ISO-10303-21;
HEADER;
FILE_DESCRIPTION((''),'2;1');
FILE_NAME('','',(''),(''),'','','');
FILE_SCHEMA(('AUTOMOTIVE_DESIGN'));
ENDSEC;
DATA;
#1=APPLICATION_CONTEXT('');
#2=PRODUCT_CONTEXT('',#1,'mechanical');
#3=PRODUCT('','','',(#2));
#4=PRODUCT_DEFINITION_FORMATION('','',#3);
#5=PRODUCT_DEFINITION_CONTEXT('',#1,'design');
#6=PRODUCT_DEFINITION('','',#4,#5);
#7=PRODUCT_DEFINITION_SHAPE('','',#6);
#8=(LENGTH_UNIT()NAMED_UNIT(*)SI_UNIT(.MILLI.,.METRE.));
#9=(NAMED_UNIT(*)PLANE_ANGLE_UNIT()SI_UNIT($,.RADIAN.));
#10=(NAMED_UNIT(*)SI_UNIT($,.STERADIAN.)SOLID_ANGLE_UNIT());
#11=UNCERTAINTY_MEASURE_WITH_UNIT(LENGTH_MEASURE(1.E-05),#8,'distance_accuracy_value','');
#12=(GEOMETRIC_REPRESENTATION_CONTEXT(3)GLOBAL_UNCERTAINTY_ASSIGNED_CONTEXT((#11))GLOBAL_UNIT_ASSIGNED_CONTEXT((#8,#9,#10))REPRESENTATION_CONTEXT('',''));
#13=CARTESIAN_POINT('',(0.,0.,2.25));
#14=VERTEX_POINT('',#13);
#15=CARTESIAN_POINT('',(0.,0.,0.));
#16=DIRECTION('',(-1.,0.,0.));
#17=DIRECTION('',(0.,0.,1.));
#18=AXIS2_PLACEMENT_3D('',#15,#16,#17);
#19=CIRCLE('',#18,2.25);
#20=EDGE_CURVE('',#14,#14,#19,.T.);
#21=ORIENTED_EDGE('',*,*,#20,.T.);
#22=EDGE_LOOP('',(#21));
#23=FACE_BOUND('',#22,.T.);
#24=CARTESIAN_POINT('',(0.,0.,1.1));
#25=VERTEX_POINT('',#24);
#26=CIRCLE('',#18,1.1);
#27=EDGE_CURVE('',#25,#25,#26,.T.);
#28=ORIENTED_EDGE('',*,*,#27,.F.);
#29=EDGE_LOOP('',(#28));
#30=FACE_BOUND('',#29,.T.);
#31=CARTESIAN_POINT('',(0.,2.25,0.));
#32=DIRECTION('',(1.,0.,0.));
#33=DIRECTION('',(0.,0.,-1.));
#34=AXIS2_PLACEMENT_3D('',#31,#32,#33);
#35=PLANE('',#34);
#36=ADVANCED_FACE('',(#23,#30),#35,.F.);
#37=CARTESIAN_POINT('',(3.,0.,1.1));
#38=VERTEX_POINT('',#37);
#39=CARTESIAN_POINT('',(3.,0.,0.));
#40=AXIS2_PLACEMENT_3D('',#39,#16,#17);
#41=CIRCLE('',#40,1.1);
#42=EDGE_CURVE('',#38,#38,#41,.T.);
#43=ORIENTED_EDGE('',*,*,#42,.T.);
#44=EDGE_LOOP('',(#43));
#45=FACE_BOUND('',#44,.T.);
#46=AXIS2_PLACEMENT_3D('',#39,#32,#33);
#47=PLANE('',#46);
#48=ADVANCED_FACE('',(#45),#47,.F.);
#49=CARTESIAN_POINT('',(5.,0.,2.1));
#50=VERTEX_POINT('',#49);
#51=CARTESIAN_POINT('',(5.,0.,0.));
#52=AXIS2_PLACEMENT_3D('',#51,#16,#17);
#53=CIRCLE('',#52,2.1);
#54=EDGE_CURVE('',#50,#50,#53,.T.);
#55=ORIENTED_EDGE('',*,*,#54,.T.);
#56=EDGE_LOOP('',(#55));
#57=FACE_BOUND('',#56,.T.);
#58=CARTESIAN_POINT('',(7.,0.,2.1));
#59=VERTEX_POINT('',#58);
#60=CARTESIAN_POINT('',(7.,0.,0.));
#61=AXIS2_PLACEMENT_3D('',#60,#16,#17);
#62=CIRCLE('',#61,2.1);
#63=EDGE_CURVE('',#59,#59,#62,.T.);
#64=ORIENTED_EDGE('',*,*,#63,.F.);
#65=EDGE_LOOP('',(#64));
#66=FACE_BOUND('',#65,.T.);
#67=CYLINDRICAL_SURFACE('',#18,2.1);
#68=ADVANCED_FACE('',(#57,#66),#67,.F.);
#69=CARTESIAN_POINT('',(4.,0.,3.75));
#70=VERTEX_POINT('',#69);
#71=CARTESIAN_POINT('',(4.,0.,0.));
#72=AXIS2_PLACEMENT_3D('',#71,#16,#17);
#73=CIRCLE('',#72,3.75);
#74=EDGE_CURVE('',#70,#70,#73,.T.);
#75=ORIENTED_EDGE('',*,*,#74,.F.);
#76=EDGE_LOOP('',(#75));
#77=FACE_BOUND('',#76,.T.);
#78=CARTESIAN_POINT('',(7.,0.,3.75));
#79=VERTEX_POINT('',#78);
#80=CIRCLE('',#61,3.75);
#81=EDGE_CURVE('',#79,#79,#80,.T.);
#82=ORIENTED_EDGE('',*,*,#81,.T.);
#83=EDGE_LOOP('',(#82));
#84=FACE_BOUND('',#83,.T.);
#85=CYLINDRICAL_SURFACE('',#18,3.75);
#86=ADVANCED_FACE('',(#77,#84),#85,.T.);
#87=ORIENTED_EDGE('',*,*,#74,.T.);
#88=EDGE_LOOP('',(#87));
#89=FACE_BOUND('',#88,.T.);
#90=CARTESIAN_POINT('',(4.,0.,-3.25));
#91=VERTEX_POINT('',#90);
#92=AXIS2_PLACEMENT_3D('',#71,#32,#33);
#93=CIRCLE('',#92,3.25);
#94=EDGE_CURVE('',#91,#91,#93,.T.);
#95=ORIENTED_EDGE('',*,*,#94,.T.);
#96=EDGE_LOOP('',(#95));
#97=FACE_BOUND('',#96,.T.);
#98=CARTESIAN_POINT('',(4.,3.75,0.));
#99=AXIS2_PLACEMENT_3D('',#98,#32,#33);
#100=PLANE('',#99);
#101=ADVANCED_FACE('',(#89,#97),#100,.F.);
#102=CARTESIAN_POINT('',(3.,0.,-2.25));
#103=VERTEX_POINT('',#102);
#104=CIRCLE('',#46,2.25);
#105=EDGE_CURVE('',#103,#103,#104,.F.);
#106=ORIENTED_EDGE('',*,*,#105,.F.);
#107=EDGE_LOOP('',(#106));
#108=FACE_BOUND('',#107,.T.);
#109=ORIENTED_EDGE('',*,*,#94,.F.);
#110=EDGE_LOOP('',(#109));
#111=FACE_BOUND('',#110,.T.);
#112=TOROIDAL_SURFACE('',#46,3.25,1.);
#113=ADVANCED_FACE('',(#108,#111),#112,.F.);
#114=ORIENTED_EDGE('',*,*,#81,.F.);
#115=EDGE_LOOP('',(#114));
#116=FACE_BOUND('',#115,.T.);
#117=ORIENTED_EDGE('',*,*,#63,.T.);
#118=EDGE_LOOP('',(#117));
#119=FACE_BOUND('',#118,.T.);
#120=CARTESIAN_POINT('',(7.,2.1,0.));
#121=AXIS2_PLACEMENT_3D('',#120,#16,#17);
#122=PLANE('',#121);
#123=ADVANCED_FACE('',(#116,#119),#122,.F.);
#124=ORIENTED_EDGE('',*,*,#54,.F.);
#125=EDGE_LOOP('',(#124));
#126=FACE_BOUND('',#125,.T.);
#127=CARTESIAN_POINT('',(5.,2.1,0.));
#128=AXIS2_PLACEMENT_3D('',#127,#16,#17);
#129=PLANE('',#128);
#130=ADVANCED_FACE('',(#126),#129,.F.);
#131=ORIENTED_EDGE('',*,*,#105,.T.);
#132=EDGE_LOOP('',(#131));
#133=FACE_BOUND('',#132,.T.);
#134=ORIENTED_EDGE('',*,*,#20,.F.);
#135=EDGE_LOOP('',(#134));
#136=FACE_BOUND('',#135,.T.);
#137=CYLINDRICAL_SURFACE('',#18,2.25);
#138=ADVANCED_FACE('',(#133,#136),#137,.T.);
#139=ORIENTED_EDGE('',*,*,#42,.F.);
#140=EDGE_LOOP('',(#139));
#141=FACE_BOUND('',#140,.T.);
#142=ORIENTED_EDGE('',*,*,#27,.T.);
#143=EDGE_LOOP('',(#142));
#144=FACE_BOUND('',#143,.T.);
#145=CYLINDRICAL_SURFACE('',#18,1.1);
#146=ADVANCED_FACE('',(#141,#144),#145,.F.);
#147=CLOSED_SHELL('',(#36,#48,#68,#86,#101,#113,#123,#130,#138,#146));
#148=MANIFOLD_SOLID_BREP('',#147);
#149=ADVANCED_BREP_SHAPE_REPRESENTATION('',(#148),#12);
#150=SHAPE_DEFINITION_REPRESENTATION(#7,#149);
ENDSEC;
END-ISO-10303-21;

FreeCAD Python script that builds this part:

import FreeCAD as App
import Part
import Sketcher

V = App.Vector


def edges_at(feature, points):
    """Names of the edges that pass closest to the given points."""
    edges = feature.Shape.Edges
    near = lambda p: min(range(len(edges)), key=lambda i: edges[i].distToShape(Part.Vertex(*p))[0])
    return sorted({f"Edge{near(p) + 1}" for p in points})

doc = App.newDocument("Part")
body = doc.addObject("PartDesign::Body", "Body")

sketch1 = body.newObject("Sketcher::SketchObject", "Sketch")
sketch1.AttachmentSupport = (doc.getObject("XY_Plane"), [""])
sketch1.MapMode = "FlatFace"
sketch1.addGeometry([
    Part.LineSegment(V(0, 1.1, 0), V(3, 1.1, 0)),
    Part.LineSegment(V(3, 1.1, 0), V(3, 0, 0)),
    Part.LineSegment(V(3, 0, 0), V(5, 0, 0)),
    Part.LineSegment(V(5, 0, 0), V(5, 2.1, 0)),
    Part.LineSegment(V(5, 2.1, 0), V(7, 2.1, 0)),
    Part.LineSegment(V(7, 2.1, 0), V(7, 3.8, 0)),
    Part.LineSegment(V(7, 3.8, 0), V(4, 3.8, 0)),
    Part.LineSegment(V(4, 3.8, 0), V(4, 2.2, 0)),
    Part.LineSegment(V(4, 2.2, 0), V(0, 2.2, 0)),
    Part.LineSegment(V(0, 2.2, 0), V(0, 1.1, 0)),
], False)
sketch1.addConstraint([
    Sketcher.Constraint("Coincident", 0, 2, 1, 1),
    Sketcher.Constraint("Coincident", 1, 2, 2, 1),
    Sketcher.Constraint("Coincident", 2, 2, 3, 1),
    Sketcher.Constraint("Coincident", 3, 2, 4, 1),
    Sketcher.Constraint("Coincident", 4, 2, 5, 1),
    Sketcher.Constraint("Coincident", 5, 2, 6, 1),
    Sketcher.Constraint("Coincident", 6, 2, 7, 1),
    Sketcher.Constraint("Coincident", 7, 2, 8, 1),
    Sketcher.Constraint("Coincident", 8, 2, 9, 1),
    Sketcher.Constraint("Coincident", 9, 2, 0, 1),
    Sketcher.Constraint("Horizontal", 0),
    Sketcher.Constraint("Vertical", 1),
    Sketcher.Constraint("Horizontal", 2),
    Sketcher.Constraint("Vertical", 3),
    Sketcher.Constraint("Horizontal", 4),
    Sketcher.Constraint("Vertical", 5),
    Sketcher.Constraint("Horizontal", 6),
    Sketcher.Constraint("Vertical", 7),
    Sketcher.Constraint("Horizontal", 8),
    Sketcher.Constraint("Vertical", 9),
    Sketcher.Constraint("PointOnObject", 1, 2, -1),
    Sketcher.Constraint("PointOnObject", 8, 2, -2),
    Sketcher.Constraint("Equal", 2, 4),
    Sketcher.Constraint("Equal", 0, 6),
    Sketcher.Constraint("DistanceX", 0, 1, 0, 2, 3.0),
    Sketcher.Constraint("DistanceX", 2, 1, 2, 2, 2.0),
    Sketcher.Constraint("DistanceY", 1, 2, 1, 1, 1.1),
    Sketcher.Constraint("DistanceY", 3, 1, 3, 2, 2.1),
    Sketcher.Constraint("DistanceY", 7, 2, 7, 1, 1.5),
    Sketcher.Constraint("DistanceY", 5, 1, 5, 2, 1.65),
])
revolution = body.newObject("PartDesign::Revolution", "Revolution")
revolution.Profile = sketch1
revolution.ReferenceAxis = (sketch1, ["H_Axis"])
revolution.Angle = 360
doc.recompute()

fillet = body.newObject("PartDesign::Fillet", "Fillet")
fillet.Base = (revolution, edges_at(revolution, [(4, -2.25, 0)]))
fillet.Radius = 1

doc.recompute()
